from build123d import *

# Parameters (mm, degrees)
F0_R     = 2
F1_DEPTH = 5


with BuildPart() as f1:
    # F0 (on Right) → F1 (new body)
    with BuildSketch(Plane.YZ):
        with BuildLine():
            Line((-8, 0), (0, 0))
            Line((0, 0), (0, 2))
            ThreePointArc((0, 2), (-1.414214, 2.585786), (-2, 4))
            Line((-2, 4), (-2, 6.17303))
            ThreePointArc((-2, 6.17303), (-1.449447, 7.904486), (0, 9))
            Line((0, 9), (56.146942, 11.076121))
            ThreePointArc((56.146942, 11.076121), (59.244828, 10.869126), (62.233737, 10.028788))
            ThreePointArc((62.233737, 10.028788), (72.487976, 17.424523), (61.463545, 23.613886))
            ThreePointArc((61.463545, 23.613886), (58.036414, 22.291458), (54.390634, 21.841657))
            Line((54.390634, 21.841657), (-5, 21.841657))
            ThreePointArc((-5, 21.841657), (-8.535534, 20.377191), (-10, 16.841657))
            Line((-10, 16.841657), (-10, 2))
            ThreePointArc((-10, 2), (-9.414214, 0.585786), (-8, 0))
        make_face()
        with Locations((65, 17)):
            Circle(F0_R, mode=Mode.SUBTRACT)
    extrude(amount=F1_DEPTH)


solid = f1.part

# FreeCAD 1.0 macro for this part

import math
import FreeCAD as App
import Part
import Sketcher
from FreeCAD import Vector
Q = App.Units.Quantity

doc = App.newDocument("Part")
params = doc.addObject("Spreadsheet::Sheet", "Params")
for row, (alias, value) in enumerate([
    ("sketch1_diameter", "4 mm"),
    ("sketch1_radius", "5 mm"),
    ("sketch1_radius2", "7.5 mm"),
    ("sketch1_width", "8 mm"),
    ("pad1_length", "5 mm"),
], start=1):
    params.set(f"A{row}", alias)
    params.set(f"B{row}", "=" + value)
    params.setAlias(f"B{row}", alias)

body = doc.addObject("PartDesign::Body", "Body")

# Sketch on YZ plane
sketch1 = body.newObject("Sketcher::SketchObject", "Sketch")
sketch1.AttachmentSupport = (doc.getObject("YZ_Plane"), [""])
sketch1.MapMode = "FlatFace"
sketch1.addGeometry([
    Part.LineSegment(Vector(-8, 0, 0), Vector(0, 0, 0)),  # 0
    Part.LineSegment(Vector(0, 0, 0), Vector(0, 2, 0)),  # 1
    Part.ArcOfCircle(Part.Circle(Vector(-0.000001, 3.999999, 0), Vector(0, 0, 1), 1.999999), math.radians(179.999957), math.radians(270.000043)),  # 2
    Part.LineSegment(Vector(-2, 4, 0), Vector(-2, 6.17303, 0)),  # 3
    Part.ArcOfCircle(Part.Circle(Vector(0.997941, 6.173029, 0), Vector(0, 0, 1), 2.997941), math.radians(109.443393), math.radians(179.999989)),  # 4
    Part.LineSegment(Vector(0, 9, 0), Vector(56.146942, 11.076121, 0)),  # 5
    Part.ArcOfCircle(Part.Circle(Vector(56.701214, -3.913621, 0), Vector(0, 0, 1), 14.999986), math.radians(68.356199), math.radians(92.117646)),  # 6
    Part.ArcOfCircle(Part.Circle(Vector(65, 17, 0), Vector(0, 0, 1), 7.5), math.radians(-111.64379), math.radians(118.133483)),  # 7
    Part.ArcOfCircle(Part.Circle(Vector(54.390635, 36.841652, 0), Vector(0, 0, 1), 14.999995), math.radians(-90.000004), math.radians(-61.866504)),  # 8
    Part.LineSegment(Vector(54.390634, 21.841657, 0), Vector(-5, 21.841657, 0)),  # 9
    Part.ArcOfCircle(Part.Circle(Vector(-5, 16.841657, 0), Vector(0, 0, 1), 5), math.radians(89.999996), math.radians(180.000004)),  # 10
    Part.LineSegment(Vector(-10, 16.841657, 0), Vector(-10, 2, 0)),  # 11
    Part.ArcOfCircle(Part.Circle(Vector(-8.000001, 1.999999, 0), Vector(0, 0, 1), 1.999999), math.radians(179.999957), math.radians(270.000043)),  # 12
    Part.Circle(Vector(65, 17, 0), Vector(0, 0, 1), 2),  # 13
], False)
sketch1.addConstraint([
    Sketcher.Constraint("Coincident", 0, 2, 1, 1),
    Sketcher.Constraint("Coincident", 1, 2, 2, 2),
    Sketcher.Constraint("Tangent", 2, 1, 3, 1),
    Sketcher.Constraint("Tangent", 3, 2, 4, 2),
    Sketcher.Constraint("Coincident", 4, 1, 5, 1),
    Sketcher.Constraint("Tangent", 5, 2, 6, 2),
    Sketcher.Constraint("Tangent", 6, 1, 7, 1),
    Sketcher.Constraint("Tangent", 7, 2, 8, 2),
    Sketcher.Constraint("Tangent", 8, 1, 9, 1),
    Sketcher.Constraint("Tangent", 9, 2, 10, 1),
    Sketcher.Constraint("Tangent", 10, 2, 11, 1),
    Sketcher.Constraint("Tangent", 11, 2, 12, 1),
    Sketcher.Constraint("Tangent", 12, 2, 0, 1),
    Sketcher.Constraint("Horizontal", 0),
    Sketcher.Constraint("Vertical", 1),
    Sketcher.Constraint("Vertical", 3),
    Sketcher.Constraint("Horizontal", 9),
    Sketcher.Constraint("Vertical", 11),
    Sketcher.Constraint("Coincident", 0, 2, -1, 1),
    Sketcher.Constraint("Coincident", 13, 3, 7, 3),
    Sketcher.Constraint("Equal", 2, 12),
    Sketcher.Constraint("Equal", 12, 13),
    Sketcher.Constraint("PointOnObject", 2, 3, -2),
    Sketcher.Constraint("PointOnObject", 4, 1, -2),
    Sketcher.Constraint("Horizontal", 12, 3, 1, 2),
    Sketcher.Constraint("Diameter", 13, Q("4 mm")),
    Sketcher.Constraint("Radius", 10, Q("5 mm")),
    Sketcher.Constraint("Radius", 7, Q("7.5 mm")),
    Sketcher.Constraint("DistanceX", 0, 1, 0, 2, Q("8 mm")),
    Sketcher.Constraint("DistanceX", -1, 1, 7, 3, Q("65 mm")),
    Sketcher.Constraint("DistanceY", -1, 1, 7, 3, Q("17 mm")),
    Sketcher.Constraint("DistanceY", -1, 1, 4, 1, Q("9 mm")),
    Sketcher.Constraint("Radius", 4, Q("2.997941 mm")),
    Sketcher.Constraint("Radius", 6, Q("14.999986 mm")),
    Sketcher.Constraint("Radius", 8, Q("14.999995 mm")),
    Sketcher.Constraint("DistanceX", 4, 3, 5, 2, Q("55.149001 mm")),
    Sketcher.Constraint("DistanceX", 8, 3, 6, 1, Q("7.843102 mm")),
])
sketch1.setExpression("Constraints[25]", "Params.sketch1_diameter")
sketch1.setExpression("Constraints[26]", "Params.sketch1_radius")
sketch1.setExpression("Constraints[27]", "Params.sketch1_radius2")
sketch1.setExpression("Constraints[28]", "Params.sketch1_width")
pad1 = body.newObject("PartDesign::Pad", "Pad")
pad1.Profile = sketch1
pad1.setExpression("Length", "Params.pad1_length")

doc.recompute()
